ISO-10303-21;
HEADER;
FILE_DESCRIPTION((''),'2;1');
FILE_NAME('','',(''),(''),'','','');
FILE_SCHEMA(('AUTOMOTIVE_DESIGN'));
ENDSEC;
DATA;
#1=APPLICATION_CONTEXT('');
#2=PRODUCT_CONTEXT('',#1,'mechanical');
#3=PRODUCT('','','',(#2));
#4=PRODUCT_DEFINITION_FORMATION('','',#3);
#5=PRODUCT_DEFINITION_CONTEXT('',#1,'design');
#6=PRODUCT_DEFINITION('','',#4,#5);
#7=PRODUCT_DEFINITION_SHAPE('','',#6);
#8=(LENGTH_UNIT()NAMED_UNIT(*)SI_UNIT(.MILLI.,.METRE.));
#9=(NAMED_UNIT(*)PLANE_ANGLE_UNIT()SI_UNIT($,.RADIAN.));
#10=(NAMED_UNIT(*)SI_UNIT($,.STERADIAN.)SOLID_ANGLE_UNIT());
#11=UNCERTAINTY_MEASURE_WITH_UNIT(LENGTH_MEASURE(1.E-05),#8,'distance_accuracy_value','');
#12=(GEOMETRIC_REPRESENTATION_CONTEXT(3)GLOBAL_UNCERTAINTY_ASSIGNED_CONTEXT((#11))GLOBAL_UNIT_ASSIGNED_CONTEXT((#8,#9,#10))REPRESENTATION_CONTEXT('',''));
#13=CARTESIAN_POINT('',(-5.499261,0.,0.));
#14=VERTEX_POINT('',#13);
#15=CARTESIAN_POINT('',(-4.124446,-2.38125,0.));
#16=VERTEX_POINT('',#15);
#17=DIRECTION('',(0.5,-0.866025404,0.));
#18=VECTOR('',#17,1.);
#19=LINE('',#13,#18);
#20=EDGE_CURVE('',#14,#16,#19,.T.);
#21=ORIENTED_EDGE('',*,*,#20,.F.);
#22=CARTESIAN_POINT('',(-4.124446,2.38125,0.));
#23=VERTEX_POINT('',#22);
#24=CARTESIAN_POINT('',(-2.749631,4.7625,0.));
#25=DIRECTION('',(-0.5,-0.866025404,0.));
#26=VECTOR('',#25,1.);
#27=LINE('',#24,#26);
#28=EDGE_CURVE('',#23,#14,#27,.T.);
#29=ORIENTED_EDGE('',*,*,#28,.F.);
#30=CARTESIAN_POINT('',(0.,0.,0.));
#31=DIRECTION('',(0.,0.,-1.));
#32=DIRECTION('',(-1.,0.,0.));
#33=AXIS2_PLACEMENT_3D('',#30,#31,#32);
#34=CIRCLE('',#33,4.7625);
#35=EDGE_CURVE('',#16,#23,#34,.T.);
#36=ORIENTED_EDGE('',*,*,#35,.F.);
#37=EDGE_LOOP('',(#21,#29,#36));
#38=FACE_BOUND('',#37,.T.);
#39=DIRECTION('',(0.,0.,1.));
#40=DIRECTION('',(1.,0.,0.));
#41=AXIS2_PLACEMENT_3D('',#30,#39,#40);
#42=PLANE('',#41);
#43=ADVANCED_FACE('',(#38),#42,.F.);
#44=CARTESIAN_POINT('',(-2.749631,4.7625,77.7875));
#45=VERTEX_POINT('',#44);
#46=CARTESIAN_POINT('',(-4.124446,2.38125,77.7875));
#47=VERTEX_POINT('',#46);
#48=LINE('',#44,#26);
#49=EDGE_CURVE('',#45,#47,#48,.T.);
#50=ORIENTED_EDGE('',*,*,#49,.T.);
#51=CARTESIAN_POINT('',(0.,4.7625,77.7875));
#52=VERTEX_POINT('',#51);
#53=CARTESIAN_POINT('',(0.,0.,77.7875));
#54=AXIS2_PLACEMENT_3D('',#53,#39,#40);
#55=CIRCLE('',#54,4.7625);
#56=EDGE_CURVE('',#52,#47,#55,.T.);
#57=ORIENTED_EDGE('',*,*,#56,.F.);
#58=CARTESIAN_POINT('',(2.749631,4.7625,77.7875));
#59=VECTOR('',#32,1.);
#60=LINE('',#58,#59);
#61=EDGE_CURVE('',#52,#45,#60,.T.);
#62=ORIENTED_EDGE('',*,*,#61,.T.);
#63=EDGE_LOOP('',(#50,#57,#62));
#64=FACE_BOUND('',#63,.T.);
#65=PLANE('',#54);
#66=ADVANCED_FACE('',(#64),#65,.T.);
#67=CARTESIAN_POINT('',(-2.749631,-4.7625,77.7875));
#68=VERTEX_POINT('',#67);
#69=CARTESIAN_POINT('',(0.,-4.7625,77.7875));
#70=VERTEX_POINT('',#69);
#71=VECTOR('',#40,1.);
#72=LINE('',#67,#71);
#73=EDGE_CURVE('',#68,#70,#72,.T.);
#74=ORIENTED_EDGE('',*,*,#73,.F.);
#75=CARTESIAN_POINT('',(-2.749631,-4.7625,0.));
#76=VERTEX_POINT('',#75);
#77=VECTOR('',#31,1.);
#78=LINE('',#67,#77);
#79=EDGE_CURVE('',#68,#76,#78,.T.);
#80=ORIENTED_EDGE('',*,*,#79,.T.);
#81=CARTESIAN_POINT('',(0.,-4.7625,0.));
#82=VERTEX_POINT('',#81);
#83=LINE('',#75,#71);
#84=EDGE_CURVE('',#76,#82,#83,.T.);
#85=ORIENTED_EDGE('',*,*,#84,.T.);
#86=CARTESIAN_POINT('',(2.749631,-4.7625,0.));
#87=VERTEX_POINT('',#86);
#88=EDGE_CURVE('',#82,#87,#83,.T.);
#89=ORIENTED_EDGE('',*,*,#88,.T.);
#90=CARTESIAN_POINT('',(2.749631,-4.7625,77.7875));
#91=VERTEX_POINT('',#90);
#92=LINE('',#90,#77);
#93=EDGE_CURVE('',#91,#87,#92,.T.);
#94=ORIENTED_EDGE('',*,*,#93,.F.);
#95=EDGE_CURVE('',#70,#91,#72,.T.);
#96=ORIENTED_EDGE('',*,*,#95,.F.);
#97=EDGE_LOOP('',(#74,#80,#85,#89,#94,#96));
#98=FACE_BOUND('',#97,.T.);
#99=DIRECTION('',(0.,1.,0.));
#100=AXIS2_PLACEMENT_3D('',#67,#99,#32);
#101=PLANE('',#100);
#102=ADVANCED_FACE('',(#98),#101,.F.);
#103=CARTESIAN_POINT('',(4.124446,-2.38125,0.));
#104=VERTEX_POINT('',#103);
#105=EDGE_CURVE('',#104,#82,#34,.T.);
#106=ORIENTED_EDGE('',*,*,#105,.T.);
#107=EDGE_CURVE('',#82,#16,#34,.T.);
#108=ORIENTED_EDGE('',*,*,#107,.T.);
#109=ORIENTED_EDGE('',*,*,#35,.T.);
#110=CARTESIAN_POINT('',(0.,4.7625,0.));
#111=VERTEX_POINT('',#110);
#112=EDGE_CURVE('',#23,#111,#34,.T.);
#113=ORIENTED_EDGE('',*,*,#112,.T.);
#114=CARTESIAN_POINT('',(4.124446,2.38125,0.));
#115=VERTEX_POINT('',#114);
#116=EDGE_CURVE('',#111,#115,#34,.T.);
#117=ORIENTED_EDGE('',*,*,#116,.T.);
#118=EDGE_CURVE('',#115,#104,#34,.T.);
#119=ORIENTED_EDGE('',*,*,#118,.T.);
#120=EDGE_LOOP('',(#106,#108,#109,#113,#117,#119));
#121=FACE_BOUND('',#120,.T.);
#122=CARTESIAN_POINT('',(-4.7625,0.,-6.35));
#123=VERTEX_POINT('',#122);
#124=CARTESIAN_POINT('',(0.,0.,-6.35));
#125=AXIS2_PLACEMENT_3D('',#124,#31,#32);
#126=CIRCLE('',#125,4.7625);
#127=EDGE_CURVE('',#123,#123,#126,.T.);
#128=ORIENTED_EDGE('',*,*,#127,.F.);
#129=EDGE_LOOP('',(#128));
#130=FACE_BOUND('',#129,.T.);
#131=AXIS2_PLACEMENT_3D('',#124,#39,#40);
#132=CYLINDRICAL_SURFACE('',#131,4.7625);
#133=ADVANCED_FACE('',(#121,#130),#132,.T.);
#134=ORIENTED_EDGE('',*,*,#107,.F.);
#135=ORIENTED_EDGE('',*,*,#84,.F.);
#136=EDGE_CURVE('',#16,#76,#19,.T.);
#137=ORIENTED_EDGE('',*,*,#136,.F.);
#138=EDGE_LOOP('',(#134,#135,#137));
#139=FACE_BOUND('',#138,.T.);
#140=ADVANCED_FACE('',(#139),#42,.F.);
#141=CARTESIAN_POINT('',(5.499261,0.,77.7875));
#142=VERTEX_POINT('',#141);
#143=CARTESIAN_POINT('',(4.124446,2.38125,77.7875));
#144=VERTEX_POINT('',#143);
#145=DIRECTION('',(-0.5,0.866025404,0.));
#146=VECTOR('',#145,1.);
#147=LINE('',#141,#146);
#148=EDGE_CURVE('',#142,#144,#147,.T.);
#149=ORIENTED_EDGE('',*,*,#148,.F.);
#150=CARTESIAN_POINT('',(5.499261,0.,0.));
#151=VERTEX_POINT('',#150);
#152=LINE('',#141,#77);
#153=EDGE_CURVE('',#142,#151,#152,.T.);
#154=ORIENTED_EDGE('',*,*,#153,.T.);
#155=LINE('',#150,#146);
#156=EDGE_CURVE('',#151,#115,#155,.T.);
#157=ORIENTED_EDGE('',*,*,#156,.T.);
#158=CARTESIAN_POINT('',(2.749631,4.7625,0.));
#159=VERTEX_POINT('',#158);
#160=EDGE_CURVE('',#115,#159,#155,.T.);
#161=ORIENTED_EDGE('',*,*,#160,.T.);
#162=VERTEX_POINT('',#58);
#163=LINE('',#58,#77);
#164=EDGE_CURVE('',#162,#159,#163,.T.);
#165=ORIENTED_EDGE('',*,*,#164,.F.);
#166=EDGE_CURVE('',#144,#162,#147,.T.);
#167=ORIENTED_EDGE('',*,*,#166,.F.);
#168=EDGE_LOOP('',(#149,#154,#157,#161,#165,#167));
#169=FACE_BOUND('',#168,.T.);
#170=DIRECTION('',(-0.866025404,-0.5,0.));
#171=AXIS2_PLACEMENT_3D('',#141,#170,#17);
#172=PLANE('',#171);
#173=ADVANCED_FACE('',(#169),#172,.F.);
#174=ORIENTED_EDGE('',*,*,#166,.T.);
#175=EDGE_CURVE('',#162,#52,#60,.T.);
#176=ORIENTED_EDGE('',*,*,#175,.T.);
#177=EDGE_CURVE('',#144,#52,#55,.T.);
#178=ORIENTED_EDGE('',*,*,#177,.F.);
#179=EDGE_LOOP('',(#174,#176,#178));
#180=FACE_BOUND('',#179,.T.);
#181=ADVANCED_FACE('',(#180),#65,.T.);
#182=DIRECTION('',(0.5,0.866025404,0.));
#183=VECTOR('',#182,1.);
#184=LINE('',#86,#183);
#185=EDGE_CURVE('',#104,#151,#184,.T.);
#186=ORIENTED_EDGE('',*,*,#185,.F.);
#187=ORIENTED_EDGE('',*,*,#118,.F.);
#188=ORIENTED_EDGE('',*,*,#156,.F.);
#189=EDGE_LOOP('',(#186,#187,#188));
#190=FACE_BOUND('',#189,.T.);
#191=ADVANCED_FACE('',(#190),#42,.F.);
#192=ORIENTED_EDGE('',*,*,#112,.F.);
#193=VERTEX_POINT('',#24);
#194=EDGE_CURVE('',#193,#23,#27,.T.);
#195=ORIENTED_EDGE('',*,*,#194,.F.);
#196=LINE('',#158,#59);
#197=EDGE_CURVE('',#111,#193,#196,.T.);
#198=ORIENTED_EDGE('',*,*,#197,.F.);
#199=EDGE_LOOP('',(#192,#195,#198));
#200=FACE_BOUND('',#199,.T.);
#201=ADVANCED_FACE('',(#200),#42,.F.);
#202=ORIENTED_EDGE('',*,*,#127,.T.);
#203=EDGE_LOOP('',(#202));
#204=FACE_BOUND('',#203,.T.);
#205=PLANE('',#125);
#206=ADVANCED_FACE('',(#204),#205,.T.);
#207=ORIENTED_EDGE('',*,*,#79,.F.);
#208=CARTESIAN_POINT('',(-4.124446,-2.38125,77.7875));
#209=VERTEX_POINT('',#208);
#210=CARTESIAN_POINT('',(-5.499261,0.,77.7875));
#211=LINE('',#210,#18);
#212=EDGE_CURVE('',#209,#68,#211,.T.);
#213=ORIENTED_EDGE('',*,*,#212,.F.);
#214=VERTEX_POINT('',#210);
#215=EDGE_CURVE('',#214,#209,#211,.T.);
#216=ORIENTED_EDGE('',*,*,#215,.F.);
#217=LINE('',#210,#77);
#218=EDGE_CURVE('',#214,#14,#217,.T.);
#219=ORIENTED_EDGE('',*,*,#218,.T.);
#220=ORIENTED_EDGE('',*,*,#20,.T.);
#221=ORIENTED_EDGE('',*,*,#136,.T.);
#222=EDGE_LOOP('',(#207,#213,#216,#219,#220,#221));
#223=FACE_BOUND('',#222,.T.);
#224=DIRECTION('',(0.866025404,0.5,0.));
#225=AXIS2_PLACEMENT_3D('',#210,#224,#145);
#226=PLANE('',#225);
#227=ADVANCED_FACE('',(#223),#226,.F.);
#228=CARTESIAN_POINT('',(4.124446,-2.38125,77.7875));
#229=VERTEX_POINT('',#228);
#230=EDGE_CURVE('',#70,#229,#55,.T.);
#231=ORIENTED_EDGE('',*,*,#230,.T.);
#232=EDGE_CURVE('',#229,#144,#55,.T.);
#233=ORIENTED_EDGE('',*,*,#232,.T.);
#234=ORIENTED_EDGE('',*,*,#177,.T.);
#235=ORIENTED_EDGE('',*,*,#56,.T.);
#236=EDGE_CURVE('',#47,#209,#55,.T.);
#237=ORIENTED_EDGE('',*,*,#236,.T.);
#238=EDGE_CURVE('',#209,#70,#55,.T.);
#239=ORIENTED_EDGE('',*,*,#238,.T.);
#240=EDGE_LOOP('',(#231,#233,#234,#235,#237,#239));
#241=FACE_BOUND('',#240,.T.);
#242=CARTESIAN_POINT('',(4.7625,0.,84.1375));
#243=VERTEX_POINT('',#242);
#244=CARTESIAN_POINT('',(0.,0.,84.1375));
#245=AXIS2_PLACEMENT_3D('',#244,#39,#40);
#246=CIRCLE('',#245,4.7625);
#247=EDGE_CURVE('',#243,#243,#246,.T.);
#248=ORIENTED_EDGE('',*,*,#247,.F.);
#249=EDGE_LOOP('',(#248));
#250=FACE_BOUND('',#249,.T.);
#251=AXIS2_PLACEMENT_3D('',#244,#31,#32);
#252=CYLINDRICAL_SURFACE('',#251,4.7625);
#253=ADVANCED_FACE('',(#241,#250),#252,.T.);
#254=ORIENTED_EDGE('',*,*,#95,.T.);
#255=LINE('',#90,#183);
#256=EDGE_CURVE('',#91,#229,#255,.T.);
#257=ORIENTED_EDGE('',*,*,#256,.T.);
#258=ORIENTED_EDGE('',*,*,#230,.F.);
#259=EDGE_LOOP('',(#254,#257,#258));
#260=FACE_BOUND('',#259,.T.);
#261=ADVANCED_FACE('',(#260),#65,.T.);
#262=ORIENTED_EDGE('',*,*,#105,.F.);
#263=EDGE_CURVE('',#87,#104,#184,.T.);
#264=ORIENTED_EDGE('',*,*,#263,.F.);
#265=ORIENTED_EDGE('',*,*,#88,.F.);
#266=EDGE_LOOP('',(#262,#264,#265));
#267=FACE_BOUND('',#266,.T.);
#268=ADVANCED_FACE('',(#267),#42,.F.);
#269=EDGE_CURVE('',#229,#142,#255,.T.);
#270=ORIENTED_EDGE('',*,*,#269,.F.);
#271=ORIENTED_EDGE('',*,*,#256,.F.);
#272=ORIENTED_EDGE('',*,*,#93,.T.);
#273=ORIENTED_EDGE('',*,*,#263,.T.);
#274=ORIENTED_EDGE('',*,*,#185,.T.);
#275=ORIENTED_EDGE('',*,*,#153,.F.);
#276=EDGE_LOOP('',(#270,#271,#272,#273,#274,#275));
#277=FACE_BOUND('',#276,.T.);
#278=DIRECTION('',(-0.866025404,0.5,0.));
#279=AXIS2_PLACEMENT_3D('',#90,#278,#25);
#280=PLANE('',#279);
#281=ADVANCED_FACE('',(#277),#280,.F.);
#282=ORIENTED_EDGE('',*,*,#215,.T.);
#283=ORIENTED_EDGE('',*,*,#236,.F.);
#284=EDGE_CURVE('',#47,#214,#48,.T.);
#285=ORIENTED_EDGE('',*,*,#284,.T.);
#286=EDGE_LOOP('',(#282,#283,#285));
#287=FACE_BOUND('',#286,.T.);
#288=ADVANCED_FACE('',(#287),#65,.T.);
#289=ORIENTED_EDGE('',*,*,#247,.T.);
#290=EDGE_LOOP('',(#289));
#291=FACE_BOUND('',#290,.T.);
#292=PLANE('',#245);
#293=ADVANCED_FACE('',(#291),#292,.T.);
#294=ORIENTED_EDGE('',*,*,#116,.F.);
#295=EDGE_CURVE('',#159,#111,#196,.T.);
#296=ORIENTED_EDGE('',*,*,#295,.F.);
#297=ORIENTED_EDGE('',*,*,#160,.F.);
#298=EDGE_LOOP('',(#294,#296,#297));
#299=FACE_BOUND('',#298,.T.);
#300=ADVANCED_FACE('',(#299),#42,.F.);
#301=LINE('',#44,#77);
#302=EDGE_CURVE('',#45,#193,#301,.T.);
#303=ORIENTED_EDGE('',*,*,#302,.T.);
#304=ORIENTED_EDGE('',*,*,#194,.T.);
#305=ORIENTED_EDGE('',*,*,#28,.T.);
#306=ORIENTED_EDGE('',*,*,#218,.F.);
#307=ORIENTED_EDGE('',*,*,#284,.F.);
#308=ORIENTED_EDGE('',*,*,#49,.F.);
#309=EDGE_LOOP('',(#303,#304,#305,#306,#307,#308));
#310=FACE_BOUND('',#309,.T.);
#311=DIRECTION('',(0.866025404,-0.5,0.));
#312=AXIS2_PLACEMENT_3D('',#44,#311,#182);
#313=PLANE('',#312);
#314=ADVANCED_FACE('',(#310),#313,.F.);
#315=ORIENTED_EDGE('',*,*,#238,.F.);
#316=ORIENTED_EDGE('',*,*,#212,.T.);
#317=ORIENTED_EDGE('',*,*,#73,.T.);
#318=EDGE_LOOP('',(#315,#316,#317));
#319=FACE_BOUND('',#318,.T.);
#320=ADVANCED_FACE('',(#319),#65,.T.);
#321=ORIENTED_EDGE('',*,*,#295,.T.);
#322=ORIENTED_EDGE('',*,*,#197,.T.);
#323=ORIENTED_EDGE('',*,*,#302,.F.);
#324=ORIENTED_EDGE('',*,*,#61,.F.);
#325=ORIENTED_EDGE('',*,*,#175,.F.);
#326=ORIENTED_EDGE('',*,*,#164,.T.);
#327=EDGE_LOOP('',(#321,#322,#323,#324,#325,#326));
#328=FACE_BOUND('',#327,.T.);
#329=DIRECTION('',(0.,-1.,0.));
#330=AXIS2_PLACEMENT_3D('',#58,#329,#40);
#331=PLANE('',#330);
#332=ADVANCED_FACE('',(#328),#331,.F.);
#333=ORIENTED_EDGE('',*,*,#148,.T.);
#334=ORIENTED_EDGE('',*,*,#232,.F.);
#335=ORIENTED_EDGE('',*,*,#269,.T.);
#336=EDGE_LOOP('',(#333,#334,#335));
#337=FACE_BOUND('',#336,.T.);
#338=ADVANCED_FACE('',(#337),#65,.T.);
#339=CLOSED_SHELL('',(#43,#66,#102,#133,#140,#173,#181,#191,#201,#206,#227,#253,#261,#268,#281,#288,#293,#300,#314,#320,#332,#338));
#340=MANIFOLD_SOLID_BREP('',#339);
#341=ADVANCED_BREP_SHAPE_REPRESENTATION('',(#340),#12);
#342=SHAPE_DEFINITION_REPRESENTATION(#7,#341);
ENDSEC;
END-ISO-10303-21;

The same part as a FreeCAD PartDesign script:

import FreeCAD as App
import Part
import Sketcher
Q = App.Units.Quantity


def add_polygon(sketch, points):
    """Adds a closed chain of lines whose ends are joined by coincident constraints."""
    first, n = sketch.GeometryCount, len(points)
    for a, b in zip(points, points[1:] + points[:1]):
        sketch.addGeometry(Part.LineSegment(App.Vector(*a, 0), App.Vector(*b, 0)), False)
    for i in range(n):
        sketch.addConstraint(Sketcher.Constraint("Coincident", first + i, 2, first + (i + 1) % n, 1))

doc = App.newDocument("Part")
params = doc.addObject("Spreadsheet::Sheet", "Params")
for row, (alias, value) in enumerate([
    ("pad1_length", "3.0625 in"),
    ("sketch2_diameter", "0.375 in"),
    ("pad2_length", "0.25 in"),
    ("sketch3_diameter", "0.375 in"),
    ("pad3_length", "0.25 in"),
], start=1):
    params.set(f"A{row}", alias)
    params.set(f"B{row}", "=" + value)
    params.setAlias(f"B{row}", alias)

body = doc.addObject("PartDesign::Body", "Body")

sketch1 = body.newObject("Sketcher::SketchObject", "Sketch")
sketch1.AttachmentSupport = (doc.getObject("XY_Plane"), [""])
sketch1.MapMode = "FlatFace"
add_polygon(sketch1, [(-2.749631, -4.7625), (2.749631, -4.7625), (5.499261, 0), (2.749631, 4.7625), (-2.749631, 4.7625), (-5.499261, 0)])
sketch1.addConstraint(Sketcher.Constraint("Horizontal", 0))
sketch1.addConstraint(Sketcher.Constraint("Horizontal", 3))
sketch1.addConstraint(Sketcher.Constraint("Symmetric", 0, 2, 3, 2, -1, 1))
sketch1.addConstraint(Sketcher.Constraint("Symmetric", 1, 2, 4, 2, -1, 1))
sketch1.addConstraint(Sketcher.Constraint("PointOnObject", 1, 2, -1))
sketch1.addConstraint(Sketcher.Constraint("Parallel", 2, 5))
sketch1.addConstraint(Sketcher.Constraint("Vertical", 0, 2, 2, 2))
sketch1.addConstraint(Sketcher.Constraint("Angle", 1, Q("60 deg")))
sketch1.addConstraint(Sketcher.Constraint("DistanceY", 0, 2, -1, 1, Q("0.1875 in")))
sketch1.addConstraint(Sketcher.Constraint("DistanceX", 0, 1, 0, 2, Q("5.499261 mm")))
pad1 = body.newObject("PartDesign::Pad", "Pad")
pad1.Profile = sketch1
pad1.setExpression("Length", "Params.pad1_length")

sketch2 = body.newObject("Sketcher::SketchObject", "Sketch001")
sketch2.AttachmentSupport = (doc.getObject("XY_Plane"), [""])
sketch2.MapMode = "FlatFace"
sketch2.AttachmentOffset = App.Placement(App.Vector(0, 0, 3.0625 * 25.4), App.Rotation())
sketch2.addGeometry(Part.Circle(App.Vector(0, 0, 0), App.Vector(0, 0, 1), 4.7625), False)
sketch2.addConstraint(Sketcher.Constraint("Coincident", 0, 3, -1, 1))
sketch2.addConstraint(Sketcher.Constraint("Diameter", 0, Q("0.375 in")))
sketch2.setExpression("Constraints[1]", "Params.sketch2_diameter")
pad2 = body.newObject("PartDesign::Pad", "Pad001")
pad2.Profile = sketch2
pad2.setExpression("Length", "Params.pad2_length")

sketch3 = body.newObject("Sketcher::SketchObject", "Sketch002")
sketch3.AttachmentSupport = (doc.getObject("XY_Plane"), [""])
sketch3.MapMode = "FlatFace"
sketch3.addGeometry(Part.Circle(App.Vector(0, 0, 0), App.Vector(0, 0, 1), 4.7625), False)
sketch3.addConstraint(Sketcher.Constraint("Coincident", 0, 3, -1, 1))
sketch3.addConstraint(Sketcher.Constraint("Diameter", 0, Q("0.375 in")))
sketch3.setExpression("Constraints[1]", "Params.sketch3_diameter")
pad3 = body.newObject("PartDesign::Pad", "Pad002")
pad3.Profile = sketch3
pad3.setExpression("Length", "Params.pad3_length")
pad3.Reversed = True

doc.recompute()
